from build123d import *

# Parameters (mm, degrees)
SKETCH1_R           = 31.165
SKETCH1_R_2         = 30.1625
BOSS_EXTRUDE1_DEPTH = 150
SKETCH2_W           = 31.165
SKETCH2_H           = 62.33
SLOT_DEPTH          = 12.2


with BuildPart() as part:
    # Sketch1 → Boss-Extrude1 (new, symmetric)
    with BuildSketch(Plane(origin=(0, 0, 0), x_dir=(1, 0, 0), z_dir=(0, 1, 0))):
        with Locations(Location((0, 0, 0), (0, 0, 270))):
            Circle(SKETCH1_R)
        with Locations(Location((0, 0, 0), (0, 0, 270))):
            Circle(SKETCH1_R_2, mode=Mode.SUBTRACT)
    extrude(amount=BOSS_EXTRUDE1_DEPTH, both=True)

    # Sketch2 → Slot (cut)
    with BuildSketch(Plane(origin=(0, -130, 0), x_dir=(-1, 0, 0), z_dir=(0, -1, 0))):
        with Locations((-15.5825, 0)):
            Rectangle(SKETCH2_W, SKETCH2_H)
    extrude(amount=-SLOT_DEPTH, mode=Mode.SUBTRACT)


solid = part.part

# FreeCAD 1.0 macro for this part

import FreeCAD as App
import Part
import Sketcher
from FreeCAD import Vector


def add_polygon(sketch, points):
    """Adds a closed chain of lines whose ends are joined by coincident constraints."""
    first, n = sketch.GeometryCount, len(points)
    for a, b in zip(points, points[1:] + points[:1]):
        sketch.addGeometry(Part.LineSegment(App.Vector(*a, 0), App.Vector(*b, 0)), False)
    for i in range(n):
        sketch.addConstraint(Sketcher.Constraint("Coincident", first + i, 2, first + (i + 1) % n, 1))

doc = App.newDocument("Part")
body = doc.addObject("PartDesign::Body", "Body")

# Sketch on XZ plane
sketch1 = doc.addObject("Sketcher::SketchObject", "Sketch")
body.addObject(sketch1)
sketch1.AttachmentSupport = (doc.XZ_Plane, [""])
sketch1.MapMode = "FlatFace"
sketch1.addGeometry([
    Part.Circle(Vector(0, 0, 0), Vector(0, 0, 1), 31),
    Part.Circle(Vector(0, 0, 0), Vector(0, 0, 1), 30),
], False)
sketch1.addConstraint([
    Sketcher.Constraint("Coincident", 0, 3, -1, 1),
    Sketcher.Constraint("Coincident", 1, 3, -1, 1),
    Sketcher.Constraint("Diameter", 0, 62.33),
    Sketcher.Constraint("Diameter", 1, 60.325),
])
pad1 = doc.addObject("PartDesign::Pad", "Pad")
body.addObject(pad1)
pad1.Profile = sketch1
pad1.Length = 300
pad1.Midplane = True

# Sketch on XZ plane
sketch2 = doc.addObject("Sketcher::SketchObject", "Sketch001")
body.addObject(sketch2)
sketch2.AttachmentSupport = (doc.XZ_Plane, [""])
sketch2.MapMode = "FlatFace"
sketch2.AttachmentOffset = App.Placement(Vector(0, 0, 130), App.Rotation())
add_polygon(sketch2, [(31, -31), (31, 31), (0, 31), (0, -31)])  # lines 0-3
sketch2.addConstraint([
    Sketcher.Constraint("Vertical", 0),
    Sketcher.Constraint("Horizontal", 1),
    Sketcher.Constraint("Vertical", 2),
    Sketcher.Constraint("Horizontal", 3),
    Sketcher.Constraint("Symmetric", 1, 2, 2, 2, -1, 1),
    Sketcher.Constraint("DistanceY", 0, 1, 0, 2, 62.33),
    Sketcher.Constraint("DistanceX", 1, 2, 1, 1, 31.165),
])
pocket1 = doc.addObject("PartDesign::Pocket", "Pocket")
body.addObject(pocket1)
pocket1.Profile = sketch2
pocket1.Length = 12.2

doc.recompute()
